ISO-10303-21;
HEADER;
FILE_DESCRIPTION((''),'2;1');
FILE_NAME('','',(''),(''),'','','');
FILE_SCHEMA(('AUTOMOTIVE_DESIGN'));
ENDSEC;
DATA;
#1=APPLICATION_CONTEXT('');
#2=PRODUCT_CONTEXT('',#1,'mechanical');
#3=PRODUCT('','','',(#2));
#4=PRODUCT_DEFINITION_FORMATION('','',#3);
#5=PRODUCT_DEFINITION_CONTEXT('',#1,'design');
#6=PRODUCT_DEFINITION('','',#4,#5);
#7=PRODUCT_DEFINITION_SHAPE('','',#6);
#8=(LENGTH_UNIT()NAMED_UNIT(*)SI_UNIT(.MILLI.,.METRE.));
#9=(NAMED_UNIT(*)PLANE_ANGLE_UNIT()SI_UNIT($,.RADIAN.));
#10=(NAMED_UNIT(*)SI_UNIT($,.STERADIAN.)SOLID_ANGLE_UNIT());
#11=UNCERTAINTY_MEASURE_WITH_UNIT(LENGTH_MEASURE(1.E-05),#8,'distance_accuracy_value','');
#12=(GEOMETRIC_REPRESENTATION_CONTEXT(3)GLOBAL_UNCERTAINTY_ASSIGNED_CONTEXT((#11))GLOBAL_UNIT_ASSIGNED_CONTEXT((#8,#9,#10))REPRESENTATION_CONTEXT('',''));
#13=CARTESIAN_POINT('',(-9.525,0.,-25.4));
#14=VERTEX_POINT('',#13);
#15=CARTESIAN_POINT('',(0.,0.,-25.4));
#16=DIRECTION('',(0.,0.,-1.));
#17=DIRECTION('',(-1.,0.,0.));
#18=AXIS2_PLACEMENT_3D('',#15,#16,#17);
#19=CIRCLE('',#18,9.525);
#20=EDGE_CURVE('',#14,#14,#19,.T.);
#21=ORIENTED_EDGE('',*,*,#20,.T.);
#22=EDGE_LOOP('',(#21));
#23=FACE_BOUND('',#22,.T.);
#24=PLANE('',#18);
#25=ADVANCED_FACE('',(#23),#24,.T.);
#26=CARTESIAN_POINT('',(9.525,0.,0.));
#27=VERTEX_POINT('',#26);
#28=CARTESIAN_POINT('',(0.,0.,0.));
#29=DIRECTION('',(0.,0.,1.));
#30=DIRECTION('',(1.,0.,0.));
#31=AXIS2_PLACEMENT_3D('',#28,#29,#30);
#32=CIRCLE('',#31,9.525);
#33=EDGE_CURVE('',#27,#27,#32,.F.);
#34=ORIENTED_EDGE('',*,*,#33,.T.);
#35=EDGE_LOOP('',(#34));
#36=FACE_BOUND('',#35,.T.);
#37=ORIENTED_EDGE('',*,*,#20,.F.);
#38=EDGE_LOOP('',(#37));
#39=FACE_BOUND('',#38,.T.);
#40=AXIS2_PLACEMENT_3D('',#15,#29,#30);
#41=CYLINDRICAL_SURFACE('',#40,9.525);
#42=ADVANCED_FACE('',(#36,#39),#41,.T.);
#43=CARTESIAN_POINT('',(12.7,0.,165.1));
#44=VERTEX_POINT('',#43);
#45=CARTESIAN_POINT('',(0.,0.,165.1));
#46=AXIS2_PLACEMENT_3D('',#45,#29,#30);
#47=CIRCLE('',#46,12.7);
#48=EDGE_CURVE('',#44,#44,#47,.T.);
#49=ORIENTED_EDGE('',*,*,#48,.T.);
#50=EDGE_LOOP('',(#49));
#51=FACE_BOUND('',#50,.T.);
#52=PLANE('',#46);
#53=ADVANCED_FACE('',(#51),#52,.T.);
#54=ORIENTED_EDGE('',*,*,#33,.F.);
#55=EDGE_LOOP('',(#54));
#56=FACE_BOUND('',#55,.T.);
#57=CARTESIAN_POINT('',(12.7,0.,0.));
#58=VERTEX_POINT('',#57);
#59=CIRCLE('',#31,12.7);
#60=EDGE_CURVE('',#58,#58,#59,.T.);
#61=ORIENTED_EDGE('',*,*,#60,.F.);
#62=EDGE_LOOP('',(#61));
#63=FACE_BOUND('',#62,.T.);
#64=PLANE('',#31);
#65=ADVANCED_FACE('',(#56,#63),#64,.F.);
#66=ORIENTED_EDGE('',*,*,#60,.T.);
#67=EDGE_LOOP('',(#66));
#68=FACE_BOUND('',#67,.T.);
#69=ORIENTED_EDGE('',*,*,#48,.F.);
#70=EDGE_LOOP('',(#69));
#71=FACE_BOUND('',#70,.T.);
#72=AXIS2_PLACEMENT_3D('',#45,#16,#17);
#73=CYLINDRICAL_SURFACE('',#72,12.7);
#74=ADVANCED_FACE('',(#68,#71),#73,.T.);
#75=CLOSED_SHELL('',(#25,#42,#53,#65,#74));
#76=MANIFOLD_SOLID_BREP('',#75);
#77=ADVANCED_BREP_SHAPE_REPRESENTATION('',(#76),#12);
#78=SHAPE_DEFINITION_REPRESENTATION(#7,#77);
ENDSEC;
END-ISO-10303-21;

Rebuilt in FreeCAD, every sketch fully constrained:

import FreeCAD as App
import Part
import Sketcher
Q = App.Units.Quantity

doc = App.newDocument("Part")
body = doc.addObject("PartDesign::Body", "Body")

# Sketch on XY plane
sketch1 = doc.addObject("Sketcher::SketchObject", "Sketch")
body.addObject(sketch1)
sketch1.AttachmentSupport = (doc.XY_Plane, [""])
sketch1.MapMode = "FlatFace"
sketch1.addGeometry(Part.Circle(App.Vector(0, 0, 0), App.Vector(0, 0, 1), 12.7), False)
sketch1.addConstraint([
    Sketcher.Constraint("Coincident", 0, 3, -1, 1),
    Sketcher.Constraint("Diameter", 0, Q("1 in")),
])
pad1 = doc.addObject("PartDesign::Pad", "Pad")
body.addObject(pad1)
pad1.Profile = sketch1
pad1.Length = Q("6.5 in")

# Sketch on XY plane
sketch2 = doc.addObject("Sketcher::SketchObject", "Sketch001")
body.addObject(sketch2)
sketch2.AttachmentSupport = (doc.XY_Plane, [""])
sketch2.MapMode = "FlatFace"
sketch2.addGeometry(Part.Circle(App.Vector(0, 0, 0), App.Vector(0, 0, 1), 9.525), False)
sketch2.addConstraint([
    Sketcher.Constraint("Coincident", 0, 3, -1, 1),
    Sketcher.Constraint("Diameter", 0, Q("0.75 in")),
])
pad2 = doc.addObject("PartDesign::Pad", "Pad001")
body.addObject(pad2)
pad2.Profile = sketch2
pad2.Length = Q("1 in")
pad2.Reversed = True

doc.recompute()
